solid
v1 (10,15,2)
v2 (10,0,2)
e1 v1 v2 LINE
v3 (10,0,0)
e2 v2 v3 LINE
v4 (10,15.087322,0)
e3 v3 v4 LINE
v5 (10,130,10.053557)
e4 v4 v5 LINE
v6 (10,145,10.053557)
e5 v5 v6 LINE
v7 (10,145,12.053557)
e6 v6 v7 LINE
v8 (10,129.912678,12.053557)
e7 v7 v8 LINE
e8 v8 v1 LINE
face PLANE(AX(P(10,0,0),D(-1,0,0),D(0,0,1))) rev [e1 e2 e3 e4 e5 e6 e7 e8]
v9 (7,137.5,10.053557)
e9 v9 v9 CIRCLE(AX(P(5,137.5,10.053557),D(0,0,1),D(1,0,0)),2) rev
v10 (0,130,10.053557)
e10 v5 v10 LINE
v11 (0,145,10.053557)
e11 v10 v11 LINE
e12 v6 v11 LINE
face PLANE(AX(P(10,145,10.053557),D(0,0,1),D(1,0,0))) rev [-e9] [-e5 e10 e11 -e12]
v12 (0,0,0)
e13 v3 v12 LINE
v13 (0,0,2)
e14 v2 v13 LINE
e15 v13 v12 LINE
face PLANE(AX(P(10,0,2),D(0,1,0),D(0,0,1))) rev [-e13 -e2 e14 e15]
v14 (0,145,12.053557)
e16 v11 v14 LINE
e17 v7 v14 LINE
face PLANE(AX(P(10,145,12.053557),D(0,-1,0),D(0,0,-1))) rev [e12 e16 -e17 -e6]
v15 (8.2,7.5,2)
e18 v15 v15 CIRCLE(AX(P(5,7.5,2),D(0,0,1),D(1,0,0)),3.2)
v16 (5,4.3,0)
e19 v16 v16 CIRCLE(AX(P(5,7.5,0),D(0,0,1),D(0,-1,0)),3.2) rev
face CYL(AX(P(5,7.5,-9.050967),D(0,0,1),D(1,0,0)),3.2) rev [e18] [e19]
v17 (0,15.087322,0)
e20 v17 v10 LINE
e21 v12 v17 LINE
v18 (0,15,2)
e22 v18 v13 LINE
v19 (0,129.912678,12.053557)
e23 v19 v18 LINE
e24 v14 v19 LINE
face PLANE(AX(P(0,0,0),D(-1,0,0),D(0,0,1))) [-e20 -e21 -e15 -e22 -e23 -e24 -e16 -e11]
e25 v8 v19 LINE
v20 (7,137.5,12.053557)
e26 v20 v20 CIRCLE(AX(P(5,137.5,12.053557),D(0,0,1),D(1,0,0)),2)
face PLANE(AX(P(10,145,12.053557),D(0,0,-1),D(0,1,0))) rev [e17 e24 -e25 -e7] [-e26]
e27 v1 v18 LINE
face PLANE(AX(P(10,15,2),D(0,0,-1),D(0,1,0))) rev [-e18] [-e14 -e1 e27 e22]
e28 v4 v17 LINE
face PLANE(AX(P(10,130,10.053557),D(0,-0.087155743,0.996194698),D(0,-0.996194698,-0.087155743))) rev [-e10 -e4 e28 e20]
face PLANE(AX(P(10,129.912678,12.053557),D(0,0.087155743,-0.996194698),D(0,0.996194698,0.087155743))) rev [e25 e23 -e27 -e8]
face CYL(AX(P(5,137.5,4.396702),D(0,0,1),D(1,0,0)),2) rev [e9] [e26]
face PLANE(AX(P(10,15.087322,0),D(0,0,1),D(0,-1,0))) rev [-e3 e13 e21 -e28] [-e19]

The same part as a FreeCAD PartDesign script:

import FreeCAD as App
import Part
import Sketcher
Q = App.Units.Quantity


def add_polygon(sketch, points):
    """Adds a closed chain of lines whose ends are joined by coincident constraints."""
    first, n = sketch.GeometryCount, len(points)
    for a, b in zip(points, points[1:] + points[:1]):
        sketch.addGeometry(Part.LineSegment(App.Vector(*a, 0), App.Vector(*b, 0)), False)
    for i in range(n):
        sketch.addConstraint(Sketcher.Constraint("Coincident", first + i, 2, first + (i + 1) % n, 1))

doc = App.newDocument("Part")
params = doc.addObject("Spreadsheet::Sheet", "Params")
for row, (alias, value) in enumerate([
    ("sketch1_width", "15 mm"),
    ("sketch1_height", "2 mm"),
    ("pad1_length", "10 mm"),
    ("sketch2_diameter", "6.4 mm"),
    ("pocket1_length", "2 mm"),
    ("sketch3_diameter", "4 mm"),
    ("pocket2_length", "2 mm"),
], start=1):
    params.set(f"A{row}", alias)
    params.set(f"B{row}", "=" + value)
    params.setAlias(f"B{row}", alias)

body = doc.addObject("PartDesign::Body", "Body")

# Sketch on YZ plane
sketch1 = body.newObject("Sketcher::SketchObject", "Sketch")
sketch1.AttachmentSupport = (doc.getObject("YZ_Plane"), [""])
sketch1.MapMode = "FlatFace"
add_polygon(sketch1, [(130, 10.053557), (145, 10.053557), (145, 12.053557), (129.912678, 12.053557), (15, 2), (0, 2), (0, 0), (15.087322, 0)])  # lines 0-7
sketch1.addConstraint([
    Sketcher.Constraint("Horizontal", 0),
    Sketcher.Constraint("Vertical", 1),
    Sketcher.Constraint("Horizontal", 2),
    Sketcher.Constraint("Horizontal", 4),
    Sketcher.Constraint("Vertical", 5),
    Sketcher.Constraint("Horizontal", 6),
    Sketcher.Constraint("Coincident", 5, 2, -1, 1),
    Sketcher.Constraint("Parallel", 3, 7),
    Sketcher.Constraint("Equal", 0, 4),
    Sketcher.Constraint("Equal", 2, 6),
    Sketcher.Constraint("DistanceX", 0, 1, 0, 2, 15.0),
    Sketcher.Constraint("DistanceY", 1, 1, 1, 2, 2.0),
    Sketcher.Constraint("Angle", 3, Q("-175 deg")),
    Sketcher.Constraint("DistanceX", -1, 1, 0, 2, 145.0),
    Sketcher.Constraint("DistanceX", 2, 2, 2, 1, 15.087322),
])
sketch1.setExpression("Constraints[18]", "Params.sketch1_width")
sketch1.setExpression("Constraints[19]", "Params.sketch1_height")
pad1 = body.newObject("PartDesign::Pad", "Pad")
pad1.Profile = sketch1
pad1.setExpression("Length", "Params.pad1_length")

# Sketch on XY plane
sketch2 = body.newObject("Sketcher::SketchObject", "Sketch001")
sketch2.AttachmentSupport = (doc.getObject("XY_Plane"), [""])
sketch2.MapMode = "FlatFace"
sketch2.AttachmentOffset = App.Placement(App.Vector(0, 0, 2), App.Rotation())
sketch2.addGeometry(Part.Circle(App.Vector(5, 7.5, 0), App.Vector(0, 0, 1), 3.2), False)
sketch2.addConstraint([
    Sketcher.Constraint("Diameter", 0, 6.4),
    Sketcher.Constraint("DistanceX", -1, 1, 0, 3, 5.0),
    Sketcher.Constraint("DistanceY", -1, 1, 0, 3, 7.5),
])
sketch2.setExpression("Constraints[0]", "Params.sketch2_diameter")
pocket1 = body.newObject("PartDesign::Pocket", "Pocket")
pocket1.Profile = sketch2
pocket1.setExpression("Length", "Params.pocket1_length")

# Sketch on XY plane
sketch3 = body.newObject("Sketcher::SketchObject", "Sketch002")
sketch3.AttachmentSupport = (doc.getObject("XY_Plane"), [""])
sketch3.MapMode = "FlatFace"
sketch3.AttachmentOffset = App.Placement(App.Vector(0, 0, 12.053557), App.Rotation())
sketch3.addGeometry(Part.Circle(App.Vector(5, 137.5, 0), App.Vector(0, 0, 1), 2), False)
sketch3.addConstraint([
    Sketcher.Constraint("Diameter", 0, 4.0),
    Sketcher.Constraint("DistanceX", -1, 1, 0, 3, 5.0),
    Sketcher.Constraint("DistanceY", -1, 1, 0, 3, 137.5),
])
sketch3.setExpression("Constraints[0]", "Params.sketch3_diameter")
pocket2 = body.newObject("PartDesign::Pocket", "Pocket001")
pocket2.Profile = sketch3
pocket2.setExpression("Length", "Params.pocket2_length")

doc.recompute()
